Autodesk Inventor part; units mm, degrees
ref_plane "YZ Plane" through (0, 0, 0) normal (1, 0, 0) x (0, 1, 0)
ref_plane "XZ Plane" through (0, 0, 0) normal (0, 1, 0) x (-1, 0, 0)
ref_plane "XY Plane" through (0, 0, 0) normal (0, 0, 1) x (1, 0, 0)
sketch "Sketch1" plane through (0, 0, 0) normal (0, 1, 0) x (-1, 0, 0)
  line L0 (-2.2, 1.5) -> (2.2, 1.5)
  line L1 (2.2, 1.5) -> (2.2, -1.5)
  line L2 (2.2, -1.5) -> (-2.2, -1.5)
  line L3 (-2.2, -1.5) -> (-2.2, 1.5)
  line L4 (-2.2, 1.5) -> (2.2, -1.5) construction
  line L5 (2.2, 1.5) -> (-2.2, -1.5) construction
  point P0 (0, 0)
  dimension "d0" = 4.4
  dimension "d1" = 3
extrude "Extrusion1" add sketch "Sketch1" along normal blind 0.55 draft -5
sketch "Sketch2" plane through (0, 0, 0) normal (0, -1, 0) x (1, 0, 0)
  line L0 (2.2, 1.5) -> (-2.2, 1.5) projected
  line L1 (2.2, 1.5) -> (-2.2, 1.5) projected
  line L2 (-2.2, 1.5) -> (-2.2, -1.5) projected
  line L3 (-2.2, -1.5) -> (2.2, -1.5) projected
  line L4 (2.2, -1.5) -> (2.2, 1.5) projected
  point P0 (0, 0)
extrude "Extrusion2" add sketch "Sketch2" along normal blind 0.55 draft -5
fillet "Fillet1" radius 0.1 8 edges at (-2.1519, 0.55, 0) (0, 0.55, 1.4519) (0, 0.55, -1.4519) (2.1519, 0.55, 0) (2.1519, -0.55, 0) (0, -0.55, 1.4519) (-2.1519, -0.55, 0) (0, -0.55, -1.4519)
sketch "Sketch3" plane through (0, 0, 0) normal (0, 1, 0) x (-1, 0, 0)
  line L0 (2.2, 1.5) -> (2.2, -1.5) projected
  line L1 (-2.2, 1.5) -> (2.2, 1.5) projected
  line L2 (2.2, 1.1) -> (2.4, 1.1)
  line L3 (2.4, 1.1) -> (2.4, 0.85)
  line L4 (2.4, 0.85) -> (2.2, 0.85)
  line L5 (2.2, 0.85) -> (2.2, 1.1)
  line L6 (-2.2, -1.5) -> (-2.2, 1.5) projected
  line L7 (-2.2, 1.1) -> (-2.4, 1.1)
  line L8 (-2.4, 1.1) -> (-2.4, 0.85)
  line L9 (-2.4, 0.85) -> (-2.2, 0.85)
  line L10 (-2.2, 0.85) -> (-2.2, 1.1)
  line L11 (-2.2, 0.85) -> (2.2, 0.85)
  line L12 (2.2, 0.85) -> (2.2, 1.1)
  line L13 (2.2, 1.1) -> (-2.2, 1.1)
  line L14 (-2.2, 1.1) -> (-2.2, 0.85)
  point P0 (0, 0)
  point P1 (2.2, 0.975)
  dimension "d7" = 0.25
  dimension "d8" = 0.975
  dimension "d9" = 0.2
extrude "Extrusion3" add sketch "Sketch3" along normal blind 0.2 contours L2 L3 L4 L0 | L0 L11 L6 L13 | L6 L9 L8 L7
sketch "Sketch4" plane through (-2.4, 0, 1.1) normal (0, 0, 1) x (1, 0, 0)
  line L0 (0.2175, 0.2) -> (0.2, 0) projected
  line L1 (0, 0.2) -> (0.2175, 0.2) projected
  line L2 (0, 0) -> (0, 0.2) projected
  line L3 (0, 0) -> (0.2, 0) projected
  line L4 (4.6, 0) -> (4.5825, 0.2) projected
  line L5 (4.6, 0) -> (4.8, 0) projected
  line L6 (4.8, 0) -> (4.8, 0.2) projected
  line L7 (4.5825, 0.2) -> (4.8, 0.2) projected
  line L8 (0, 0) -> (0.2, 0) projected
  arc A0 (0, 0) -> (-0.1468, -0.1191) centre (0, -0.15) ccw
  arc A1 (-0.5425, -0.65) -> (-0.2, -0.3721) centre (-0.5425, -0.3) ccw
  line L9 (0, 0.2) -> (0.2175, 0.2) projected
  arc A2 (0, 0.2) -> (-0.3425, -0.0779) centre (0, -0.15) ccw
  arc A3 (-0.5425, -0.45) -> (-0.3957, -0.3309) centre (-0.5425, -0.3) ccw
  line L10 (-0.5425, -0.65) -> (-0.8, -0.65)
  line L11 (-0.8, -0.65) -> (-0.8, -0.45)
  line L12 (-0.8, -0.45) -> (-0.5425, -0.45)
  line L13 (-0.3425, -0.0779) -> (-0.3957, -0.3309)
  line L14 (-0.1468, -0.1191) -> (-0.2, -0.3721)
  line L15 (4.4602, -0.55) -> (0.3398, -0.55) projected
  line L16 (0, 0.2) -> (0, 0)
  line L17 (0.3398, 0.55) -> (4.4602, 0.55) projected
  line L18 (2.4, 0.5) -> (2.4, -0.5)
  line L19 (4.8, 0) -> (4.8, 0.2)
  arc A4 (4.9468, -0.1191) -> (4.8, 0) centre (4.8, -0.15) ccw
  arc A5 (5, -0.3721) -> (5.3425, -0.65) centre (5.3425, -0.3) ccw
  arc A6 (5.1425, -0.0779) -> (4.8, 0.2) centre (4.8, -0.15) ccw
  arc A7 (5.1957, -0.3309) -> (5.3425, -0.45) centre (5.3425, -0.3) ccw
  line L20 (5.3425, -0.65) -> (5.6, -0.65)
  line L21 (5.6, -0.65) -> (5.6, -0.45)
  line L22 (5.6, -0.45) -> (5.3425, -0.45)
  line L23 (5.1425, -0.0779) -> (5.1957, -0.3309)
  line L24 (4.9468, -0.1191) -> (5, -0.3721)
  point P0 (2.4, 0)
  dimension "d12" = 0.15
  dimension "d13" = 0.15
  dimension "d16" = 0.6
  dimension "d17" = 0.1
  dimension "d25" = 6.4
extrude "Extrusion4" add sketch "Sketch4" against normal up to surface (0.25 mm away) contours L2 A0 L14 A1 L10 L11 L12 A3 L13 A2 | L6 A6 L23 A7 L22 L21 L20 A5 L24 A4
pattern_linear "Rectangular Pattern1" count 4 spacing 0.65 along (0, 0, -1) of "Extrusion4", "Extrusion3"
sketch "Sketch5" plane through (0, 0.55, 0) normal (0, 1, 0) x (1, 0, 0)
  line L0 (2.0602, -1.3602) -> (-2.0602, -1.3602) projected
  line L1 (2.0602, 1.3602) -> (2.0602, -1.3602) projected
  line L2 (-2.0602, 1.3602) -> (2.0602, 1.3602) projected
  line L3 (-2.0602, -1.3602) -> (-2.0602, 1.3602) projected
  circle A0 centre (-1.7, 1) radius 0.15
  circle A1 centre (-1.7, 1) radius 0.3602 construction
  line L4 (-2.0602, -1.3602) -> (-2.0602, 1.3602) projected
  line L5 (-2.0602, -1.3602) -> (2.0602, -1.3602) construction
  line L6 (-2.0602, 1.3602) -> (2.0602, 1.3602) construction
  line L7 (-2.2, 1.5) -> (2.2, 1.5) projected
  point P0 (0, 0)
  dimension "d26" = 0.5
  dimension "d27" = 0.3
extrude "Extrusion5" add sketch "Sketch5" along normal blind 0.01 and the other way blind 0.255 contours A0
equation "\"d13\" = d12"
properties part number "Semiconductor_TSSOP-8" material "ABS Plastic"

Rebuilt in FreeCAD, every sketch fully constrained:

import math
import FreeCAD as App
import Part
import Sketcher

V = App.Vector


def edges_at(feature, points):
    """Names of the edges that pass closest to the given points."""
    edges = feature.Shape.Edges
    near = lambda p: min(range(len(edges)), key=lambda i: edges[i].distToShape(Part.Vertex(*p))[0])
    return sorted({f"Edge{near(p) + 1}" for p in points})

doc = App.newDocument("Part")
body = doc.addObject("PartDesign::Body", "Body")

# Sketch on XZ plane
sketch1 = body.newObject("Sketcher::SketchObject", "Sketch")
sketch1.AttachmentSupport = (doc.getObject("XZ_Plane"), [""])
sketch1.MapMode = "FlatFace"
sketch1.addGeometry([
    Part.LineSegment(V(-2.2, 1.5, 0), V(2.2, 1.5, 0)),
    Part.LineSegment(V(2.2, 1.5, 0), V(2.2, -1.5, 0)),
    Part.LineSegment(V(2.2, -1.5, 0), V(-2.2, -1.5, 0)),
    Part.LineSegment(V(-2.2, -1.5, 0), V(-2.2, 1.5, 0)),
], False)
sketch1.addConstraint([
    Sketcher.Constraint("Coincident", 0, 2, 1, 1),
    Sketcher.Constraint("Coincident", 1, 2, 2, 1),
    Sketcher.Constraint("Coincident", 2, 2, 3, 1),
    Sketcher.Constraint("Coincident", 3, 2, 0, 1),
    Sketcher.Constraint("Horizontal", 0),
    Sketcher.Constraint("Vertical", 1),
    Sketcher.Constraint("Horizontal", 2),
    Sketcher.Constraint("Vertical", 3),
    Sketcher.Constraint("Symmetric", 0, 2, 2, 2, -1, 1),
    Sketcher.Constraint("DistanceY", 1, 2, 1, 1, 3.0),
    Sketcher.Constraint("DistanceX", 0, 1, 0, 2, 4.4),
])
pad1 = body.newObject("PartDesign::Pad", "Pad")
pad1.Profile = sketch1
pad1.Length = 0.55
pad1.Reversed = True
pad1.TaperAngle = -5

# Sketch on XZ plane
sketch2 = body.newObject("Sketcher::SketchObject", "Sketch001")
sketch2.AttachmentSupport = (doc.getObject("XZ_Plane"), [""])
sketch2.MapMode = "FlatFace"
sketch2.addGeometry([
    Part.LineSegment(V(2.2, -1.5, 0), V(2.2, 1.5, 0)),
    Part.LineSegment(V(2.2, 1.5, 0), V(-2.2, 1.5, 0)),
    Part.LineSegment(V(-2.2, 1.5, 0), V(-2.2, -1.5, 0)),
    Part.LineSegment(V(-2.2, -1.5, 0), V(2.2, -1.5, 0)),
], False)
sketch2.addConstraint([
    Sketcher.Constraint("Coincident", 0, 2, 1, 1),
    Sketcher.Constraint("Coincident", 1, 2, 2, 1),
    Sketcher.Constraint("Coincident", 2, 2, 3, 1),
    Sketcher.Constraint("Coincident", 3, 2, 0, 1),
    Sketcher.Constraint("Vertical", 0),
    Sketcher.Constraint("Horizontal", 1),
    Sketcher.Constraint("Vertical", 2),
    Sketcher.Constraint("Horizontal", 3),
    Sketcher.Constraint("Symmetric", 0, 2, 2, 2, -1, 1),
    Sketcher.Constraint("DistanceY", 0, 1, 0, 2, 3.0),
    Sketcher.Constraint("DistanceX", 1, 2, 1, 1, 4.4),
])
pad2 = body.newObject("PartDesign::Pad", "Pad001")
pad2.Profile = sketch2
pad2.Length = 0.55
pad2.TaperAngle = -5
doc.recompute()

fillet = body.newObject("PartDesign::Fillet", "Fillet")
fillet.Base = (pad2, edges_at(pad2, [
    (-2.152, 0.55, 0),
    (0, 0.55, 1.452),
    (0, 0.55, -1.452),
    (2.152, 0.55, 0),
    (2.152, -0.55, 0),
    (0, -0.55, 1.452),
    (-2.152, -0.55, 0),
    (0, -0.55, -1.452),
]))
fillet.Radius = 0.1

# Sketch on XZ plane
sketch3 = body.newObject("Sketcher::SketchObject", "Sketch002")
sketch3.AttachmentSupport = (doc.getObject("XZ_Plane"), [""])
sketch3.MapMode = "FlatFace"
sketch3.addGeometry([
    Part.LineSegment(V(-2.4, 1.1, 0), V(2.4, 1.1, 0)),
    Part.LineSegment(V(2.4, 1.1, 0), V(2.4, 0.85, 0)),
    Part.LineSegment(V(2.4, 0.85, 0), V(-2.4, 0.85, 0)),
    Part.LineSegment(V(-2.4, 0.85, 0), V(-2.4, 1.1, 0)),
], False)
sketch3.addConstraint([
    Sketcher.Constraint("Coincident", 0, 2, 1, 1),
    Sketcher.Constraint("Coincident", 1, 2, 2, 1),
    Sketcher.Constraint("Coincident", 2, 2, 3, 1),
    Sketcher.Constraint("Coincident", 3, 2, 0, 1),
    Sketcher.Constraint("Horizontal", 0),
    Sketcher.Constraint("Vertical", 1),
    Sketcher.Constraint("Horizontal", 2),
    Sketcher.Constraint("Vertical", 3),
    Sketcher.Constraint("DistanceY", 1, 2, 1, 1, 0.25),
    Sketcher.Constraint("DistanceX", 0, 1, 0, 2, 4.8),
    Sketcher.Constraint("DistanceX", -1, 1, 0, 2, 2.4),
    Sketcher.Constraint("DistanceY", -1, 1, 0, 2, 1.1),
])
pad3 = body.newObject("PartDesign::Pad", "Pad002")
pad3.Profile = sketch3
pad3.Length = 0.2
pad3.Reversed = True

# Sketch on XY plane
sketch4 = body.newObject("Sketcher::SketchObject", "Sketch003")
sketch4.AttachmentSupport = (doc.getObject("XY_Plane"), [""])
sketch4.MapMode = "FlatFace"
sketch4.AttachmentOffset = App.Placement(V(0, 0, 1.1), App.Rotation())
sketch4.addGeometry([
    Part.LineSegment(V(-2.4, 0, 0), V(-2.4, 0.2, 0)),  # 0
    Part.ArcOfCircle(Part.Circle(V(-2.4, -0.15, 0), V(0, 0, 1), 0.35), math.radians(90), math.radians(168)),  # 1
    Part.LineSegment(V(-2.74, -0.08, 0), V(-2.8, -0.33, 0)),  # 2
    Part.ArcOfCircle(Part.Circle(V(-2.94, -0.3, 0), V(0, 0, 1), 0.15), math.radians(-90), math.radians(-12)),  # 3
    Part.LineSegment(V(-2.94, -0.45, 0), V(-3.2, -0.45, 0)),  # 4
    Part.LineSegment(V(-3.2, -0.45, 0), V(-3.2, -0.65, 0)),  # 5
    Part.LineSegment(V(-3.2, -0.65, 0), V(-2.94, -0.65, 0)),  # 6
    Part.ArcOfCircle(Part.Circle(V(-2.94, -0.3, 0), V(0, 0, 1), 0.35), math.radians(-90), math.radians(-12)),  # 7
    Part.LineSegment(V(-2.6, -0.37, 0), V(-2.55, -0.12, 0)),  # 8
    Part.ArcOfCircle(Part.Circle(V(-2.4, -0.15, 0), V(0, 0, 1), 0.15), math.radians(90), math.radians(168)),  # 9
    Part.LineSegment(V(2.4, 0.2, 0), V(2.4, 0, 0)),  # 10
    Part.ArcOfCircle(Part.Circle(V(2.4, -0.15, 0), V(0, 0, 1), 0.15), math.radians(12), math.radians(90)),  # 11
    Part.LineSegment(V(2.55, -0.12, 0), V(2.6, -0.37, 0)),  # 12
    Part.ArcOfCircle(Part.Circle(V(2.94, -0.3, 0), V(0, 0, 1), 0.35), math.radians(-168), math.radians(-90)),  # 13
    Part.LineSegment(V(2.94, -0.65, 0), V(3.2, -0.65, 0)),  # 14
    Part.LineSegment(V(3.2, -0.65, 0), V(3.2, -0.45, 0)),  # 15
    Part.LineSegment(V(3.2, -0.45, 0), V(2.94, -0.45, 0)),  # 16
    Part.ArcOfCircle(Part.Circle(V(2.94, -0.3, 0), V(0, 0, 1), 0.15), math.radians(-168), math.radians(-90)),  # 17
    Part.LineSegment(V(2.8, -0.33, 0), V(2.74, -0.08, 0)),  # 18
    Part.ArcOfCircle(Part.Circle(V(2.4, -0.15, 0), V(0, 0, 1), 0.35), math.radians(12), math.radians(90)),  # 19
], False)
sketch4.addConstraint([
    Sketcher.Constraint("Coincident", 0, 2, 1, 1),
    Sketcher.Constraint("Tangent", 1, 2, 2, 1),
    Sketcher.Constraint("Tangent", 2, 2, 3, 2),
    Sketcher.Constraint("Tangent", 3, 1, 4, 1),
    Sketcher.Constraint("Coincident", 4, 2, 5, 1),
    Sketcher.Constraint("Coincident", 5, 2, 6, 1),
    Sketcher.Constraint("Tangent", 6, 2, 7, 1),
    Sketcher.Constraint("Tangent", 7, 2, 8, 1),
    Sketcher.Constraint("Tangent", 8, 2, 9, 2),
    Sketcher.Constraint("Coincident", 9, 1, 0, 1),
    Sketcher.Constraint("Coincident", 10, 2, 11, 2),
    Sketcher.Constraint("Tangent", 11, 1, 12, 1),
    Sketcher.Constraint("Tangent", 12, 2, 13, 1),
    Sketcher.Constraint("Tangent", 13, 2, 14, 1),
    Sketcher.Constraint("Coincident", 14, 2, 15, 1),
    Sketcher.Constraint("Coincident", 15, 2, 16, 1),
    Sketcher.Constraint("Tangent", 16, 2, 17, 2),
    Sketcher.Constraint("Tangent", 17, 1, 18, 1),
    Sketcher.Constraint("Tangent", 18, 2, 19, 1),
    Sketcher.Constraint("Coincident", 19, 2, 10, 1),
    Sketcher.Constraint("Vertical", 0),
    Sketcher.Constraint("Horizontal", 4),
    Sketcher.Constraint("Vertical", 5),
    Sketcher.Constraint("Horizontal", 6),
    Sketcher.Constraint("Vertical", 10),
    Sketcher.Constraint("Horizontal", 14),
    Sketcher.Constraint("Vertical", 15),
    Sketcher.Constraint("Horizontal", 16),
    Sketcher.Constraint("Coincident", 7, 3, 3, 3),
    Sketcher.Constraint("Coincident", 9, 3, 1, 3),
    Sketcher.Constraint("Coincident", 17, 3, 13, 3),
    Sketcher.Constraint("Coincident", 19, 3, 11, 3),
    Sketcher.Constraint("Equal", 1, 7),
    Sketcher.Constraint("Equal", 3, 9),
    Sketcher.Constraint("Equal", 9, 11),
    Sketcher.Constraint("Equal", 7, 13),
    Sketcher.Constraint("Equal", 11, 17),
    Sketcher.Constraint("Equal", 13, 19),
    Sketcher.Constraint("Symmetric", 9, 1, 10, 2, -1, 1),
    Sketcher.Constraint("Symmetric", 1, 3, 11, 3, -2),
    Sketcher.Constraint("Symmetric", 3, 3, 13, 3, -2),
    Sketcher.Constraint("Vertical", 9, 3, 0, 2),
    Sketcher.Constraint("Equal", 6, 14),
    Sketcher.Constraint("Radius", 3, 0.15),
    Sketcher.Constraint("DistanceX", 12, 2, 14, 2, 0.6),
    Sketcher.Constraint("Radius", 1, 0.35),
    Sketcher.Constraint("DistanceY", 3, 3, 1, 3, 0.15),
    Sketcher.Constraint("DistanceX", 1, 3, -1, 1, 2.4),
    Sketcher.Constraint("DistanceX", 4, 2, -1, 1, 3.2),
])
pad4 = body.newObject("PartDesign::Pad", "Pad003")
pad4.Profile = sketch4
pad4.Length = 0.25
pad4.Reversed = True
doc.recompute()

linearpattern = body.newObject("PartDesign::LinearPattern", "LinearPattern")
linearpattern.Originals = [pad4, pad3]
linearpattern.Direction = (doc.getObject("Z_Axis"), [""])
linearpattern.Mode = "offset"
linearpattern.Offset = 0.65
linearpattern.Occurrences = 4
linearpattern.Reversed = True
body.Tip = linearpattern

# Sketch on XZ plane
sketch5 = body.newObject("Sketcher::SketchObject", "Sketch004")
sketch5.AttachmentSupport = (doc.getObject("XZ_Plane"), [""])
sketch5.MapMode = "FlatFace"
sketch5.AttachmentOffset = App.Placement(V(0, 0, -0.55), App.Rotation())
sketch5.addGeometry(Part.Circle(V(-1.7, -1, 0), V(0, 0, 1), 0.15), False)
sketch5.addConstraint([
    Sketcher.Constraint("Diameter", 0, 0.3),
    Sketcher.Constraint("DistanceY", 0, 3, -1, 1, 1.0),
    Sketcher.Constraint("DistanceX", 0, 3, -1, 1, 1.7),
])
pad5 = body.newObject("PartDesign::Pad", "Pad004")
pad5.Profile = sketch5
pad5.Type = "TwoLengths"
pad5.Length = 0.01
pad5.Length2 = 0.255
pad5.Reversed = True

doc.recompute()
